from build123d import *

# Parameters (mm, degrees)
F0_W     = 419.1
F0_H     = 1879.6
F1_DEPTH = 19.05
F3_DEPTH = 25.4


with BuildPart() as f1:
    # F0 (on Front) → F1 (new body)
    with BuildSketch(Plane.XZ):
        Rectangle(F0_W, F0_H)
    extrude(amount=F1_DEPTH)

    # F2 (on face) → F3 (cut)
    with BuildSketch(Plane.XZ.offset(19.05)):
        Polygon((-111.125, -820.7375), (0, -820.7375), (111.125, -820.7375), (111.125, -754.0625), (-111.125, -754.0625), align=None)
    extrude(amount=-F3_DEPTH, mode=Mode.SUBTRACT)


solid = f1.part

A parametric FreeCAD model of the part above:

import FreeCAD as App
import Part
import Sketcher
from FreeCAD import Vector
Q = App.Units.Quantity


def add_polygon(sketch, points):
    """Adds a closed chain of lines whose ends are joined by coincident constraints."""
    first, n = sketch.GeometryCount, len(points)
    for a, b in zip(points, points[1:] + points[:1]):
        sketch.addGeometry(Part.LineSegment(App.Vector(*a, 0), App.Vector(*b, 0)), False)
    for i in range(n):
        sketch.addConstraint(Sketcher.Constraint("Coincident", first + i, 2, first + (i + 1) % n, 1))

doc = App.newDocument("Part")
body = doc.addObject("PartDesign::Body", "Body")

# Sketch on XZ plane
sketch1 = body.newObject("Sketcher::SketchObject", "Sketch")
sketch1.AttachmentSupport = (doc.getObject("XZ_Plane"), [""])
sketch1.MapMode = "FlatFace"
add_polygon(sketch1, [(-209.55, 939.8), (-209.55, -939.8), (209.55, -939.8), (209.55, 939.8)])  # lines 0-3
sketch1.addConstraint([
    Sketcher.Constraint("Vertical", 0),
    Sketcher.Constraint("Horizontal", 1),
    Sketcher.Constraint("Vertical", 2),
    Sketcher.Constraint("Horizontal", 3),
    Sketcher.Constraint("Symmetric", 0, 2, 2, 2, -1, 1),
    Sketcher.Constraint("DistanceY", 0, 2, 0, 1, Q("74 in")),
    Sketcher.Constraint("DistanceX", 1, 1, 1, 2, Q("16.5 in")),
])
pad1 = body.newObject("PartDesign::Pad", "Pad")
pad1.Profile = sketch1
pad1.Length = Q("0.75 in")

# Sketch on XZ plane
sketch2 = body.newObject("Sketcher::SketchObject", "Sketch001")
sketch2.AttachmentSupport = (doc.getObject("XZ_Plane"), [""])
sketch2.MapMode = "FlatFace"
sketch2.AttachmentOffset = App.Placement(Vector(0, 0, 0.75 * 25.4), App.Rotation())
add_polygon(sketch2, [(-111.125, -820.7375), (111.125, -820.7375), (111.125, -754.0625), (-111.125, -754.0625)])  # lines 0-3
sketch2.addConstraint([
    Sketcher.Constraint("Horizontal", 0),
    Sketcher.Constraint("Vertical", 1),
    Sketcher.Constraint("Horizontal", 2),
    Sketcher.Constraint("Vertical", 3),
    Sketcher.Constraint("DistanceX", 0, 1, 0, 2, Q("8.75 in")),
    Sketcher.Constraint("DistanceY", 1, 1, 1, 2, Q("2.625 in")),
    Sketcher.Constraint("DistanceX", -1, 1, 0, 2, Q("4.375 in")),
    Sketcher.Constraint("DistanceY", 0, 2, -1, 1, Q("32.3125 in")),
])
pocket1 = body.newObject("PartDesign::Pocket", "Pocket")
pocket1.Profile = sketch2
pocket1.Length = Q("1 in")

doc.recompute()
